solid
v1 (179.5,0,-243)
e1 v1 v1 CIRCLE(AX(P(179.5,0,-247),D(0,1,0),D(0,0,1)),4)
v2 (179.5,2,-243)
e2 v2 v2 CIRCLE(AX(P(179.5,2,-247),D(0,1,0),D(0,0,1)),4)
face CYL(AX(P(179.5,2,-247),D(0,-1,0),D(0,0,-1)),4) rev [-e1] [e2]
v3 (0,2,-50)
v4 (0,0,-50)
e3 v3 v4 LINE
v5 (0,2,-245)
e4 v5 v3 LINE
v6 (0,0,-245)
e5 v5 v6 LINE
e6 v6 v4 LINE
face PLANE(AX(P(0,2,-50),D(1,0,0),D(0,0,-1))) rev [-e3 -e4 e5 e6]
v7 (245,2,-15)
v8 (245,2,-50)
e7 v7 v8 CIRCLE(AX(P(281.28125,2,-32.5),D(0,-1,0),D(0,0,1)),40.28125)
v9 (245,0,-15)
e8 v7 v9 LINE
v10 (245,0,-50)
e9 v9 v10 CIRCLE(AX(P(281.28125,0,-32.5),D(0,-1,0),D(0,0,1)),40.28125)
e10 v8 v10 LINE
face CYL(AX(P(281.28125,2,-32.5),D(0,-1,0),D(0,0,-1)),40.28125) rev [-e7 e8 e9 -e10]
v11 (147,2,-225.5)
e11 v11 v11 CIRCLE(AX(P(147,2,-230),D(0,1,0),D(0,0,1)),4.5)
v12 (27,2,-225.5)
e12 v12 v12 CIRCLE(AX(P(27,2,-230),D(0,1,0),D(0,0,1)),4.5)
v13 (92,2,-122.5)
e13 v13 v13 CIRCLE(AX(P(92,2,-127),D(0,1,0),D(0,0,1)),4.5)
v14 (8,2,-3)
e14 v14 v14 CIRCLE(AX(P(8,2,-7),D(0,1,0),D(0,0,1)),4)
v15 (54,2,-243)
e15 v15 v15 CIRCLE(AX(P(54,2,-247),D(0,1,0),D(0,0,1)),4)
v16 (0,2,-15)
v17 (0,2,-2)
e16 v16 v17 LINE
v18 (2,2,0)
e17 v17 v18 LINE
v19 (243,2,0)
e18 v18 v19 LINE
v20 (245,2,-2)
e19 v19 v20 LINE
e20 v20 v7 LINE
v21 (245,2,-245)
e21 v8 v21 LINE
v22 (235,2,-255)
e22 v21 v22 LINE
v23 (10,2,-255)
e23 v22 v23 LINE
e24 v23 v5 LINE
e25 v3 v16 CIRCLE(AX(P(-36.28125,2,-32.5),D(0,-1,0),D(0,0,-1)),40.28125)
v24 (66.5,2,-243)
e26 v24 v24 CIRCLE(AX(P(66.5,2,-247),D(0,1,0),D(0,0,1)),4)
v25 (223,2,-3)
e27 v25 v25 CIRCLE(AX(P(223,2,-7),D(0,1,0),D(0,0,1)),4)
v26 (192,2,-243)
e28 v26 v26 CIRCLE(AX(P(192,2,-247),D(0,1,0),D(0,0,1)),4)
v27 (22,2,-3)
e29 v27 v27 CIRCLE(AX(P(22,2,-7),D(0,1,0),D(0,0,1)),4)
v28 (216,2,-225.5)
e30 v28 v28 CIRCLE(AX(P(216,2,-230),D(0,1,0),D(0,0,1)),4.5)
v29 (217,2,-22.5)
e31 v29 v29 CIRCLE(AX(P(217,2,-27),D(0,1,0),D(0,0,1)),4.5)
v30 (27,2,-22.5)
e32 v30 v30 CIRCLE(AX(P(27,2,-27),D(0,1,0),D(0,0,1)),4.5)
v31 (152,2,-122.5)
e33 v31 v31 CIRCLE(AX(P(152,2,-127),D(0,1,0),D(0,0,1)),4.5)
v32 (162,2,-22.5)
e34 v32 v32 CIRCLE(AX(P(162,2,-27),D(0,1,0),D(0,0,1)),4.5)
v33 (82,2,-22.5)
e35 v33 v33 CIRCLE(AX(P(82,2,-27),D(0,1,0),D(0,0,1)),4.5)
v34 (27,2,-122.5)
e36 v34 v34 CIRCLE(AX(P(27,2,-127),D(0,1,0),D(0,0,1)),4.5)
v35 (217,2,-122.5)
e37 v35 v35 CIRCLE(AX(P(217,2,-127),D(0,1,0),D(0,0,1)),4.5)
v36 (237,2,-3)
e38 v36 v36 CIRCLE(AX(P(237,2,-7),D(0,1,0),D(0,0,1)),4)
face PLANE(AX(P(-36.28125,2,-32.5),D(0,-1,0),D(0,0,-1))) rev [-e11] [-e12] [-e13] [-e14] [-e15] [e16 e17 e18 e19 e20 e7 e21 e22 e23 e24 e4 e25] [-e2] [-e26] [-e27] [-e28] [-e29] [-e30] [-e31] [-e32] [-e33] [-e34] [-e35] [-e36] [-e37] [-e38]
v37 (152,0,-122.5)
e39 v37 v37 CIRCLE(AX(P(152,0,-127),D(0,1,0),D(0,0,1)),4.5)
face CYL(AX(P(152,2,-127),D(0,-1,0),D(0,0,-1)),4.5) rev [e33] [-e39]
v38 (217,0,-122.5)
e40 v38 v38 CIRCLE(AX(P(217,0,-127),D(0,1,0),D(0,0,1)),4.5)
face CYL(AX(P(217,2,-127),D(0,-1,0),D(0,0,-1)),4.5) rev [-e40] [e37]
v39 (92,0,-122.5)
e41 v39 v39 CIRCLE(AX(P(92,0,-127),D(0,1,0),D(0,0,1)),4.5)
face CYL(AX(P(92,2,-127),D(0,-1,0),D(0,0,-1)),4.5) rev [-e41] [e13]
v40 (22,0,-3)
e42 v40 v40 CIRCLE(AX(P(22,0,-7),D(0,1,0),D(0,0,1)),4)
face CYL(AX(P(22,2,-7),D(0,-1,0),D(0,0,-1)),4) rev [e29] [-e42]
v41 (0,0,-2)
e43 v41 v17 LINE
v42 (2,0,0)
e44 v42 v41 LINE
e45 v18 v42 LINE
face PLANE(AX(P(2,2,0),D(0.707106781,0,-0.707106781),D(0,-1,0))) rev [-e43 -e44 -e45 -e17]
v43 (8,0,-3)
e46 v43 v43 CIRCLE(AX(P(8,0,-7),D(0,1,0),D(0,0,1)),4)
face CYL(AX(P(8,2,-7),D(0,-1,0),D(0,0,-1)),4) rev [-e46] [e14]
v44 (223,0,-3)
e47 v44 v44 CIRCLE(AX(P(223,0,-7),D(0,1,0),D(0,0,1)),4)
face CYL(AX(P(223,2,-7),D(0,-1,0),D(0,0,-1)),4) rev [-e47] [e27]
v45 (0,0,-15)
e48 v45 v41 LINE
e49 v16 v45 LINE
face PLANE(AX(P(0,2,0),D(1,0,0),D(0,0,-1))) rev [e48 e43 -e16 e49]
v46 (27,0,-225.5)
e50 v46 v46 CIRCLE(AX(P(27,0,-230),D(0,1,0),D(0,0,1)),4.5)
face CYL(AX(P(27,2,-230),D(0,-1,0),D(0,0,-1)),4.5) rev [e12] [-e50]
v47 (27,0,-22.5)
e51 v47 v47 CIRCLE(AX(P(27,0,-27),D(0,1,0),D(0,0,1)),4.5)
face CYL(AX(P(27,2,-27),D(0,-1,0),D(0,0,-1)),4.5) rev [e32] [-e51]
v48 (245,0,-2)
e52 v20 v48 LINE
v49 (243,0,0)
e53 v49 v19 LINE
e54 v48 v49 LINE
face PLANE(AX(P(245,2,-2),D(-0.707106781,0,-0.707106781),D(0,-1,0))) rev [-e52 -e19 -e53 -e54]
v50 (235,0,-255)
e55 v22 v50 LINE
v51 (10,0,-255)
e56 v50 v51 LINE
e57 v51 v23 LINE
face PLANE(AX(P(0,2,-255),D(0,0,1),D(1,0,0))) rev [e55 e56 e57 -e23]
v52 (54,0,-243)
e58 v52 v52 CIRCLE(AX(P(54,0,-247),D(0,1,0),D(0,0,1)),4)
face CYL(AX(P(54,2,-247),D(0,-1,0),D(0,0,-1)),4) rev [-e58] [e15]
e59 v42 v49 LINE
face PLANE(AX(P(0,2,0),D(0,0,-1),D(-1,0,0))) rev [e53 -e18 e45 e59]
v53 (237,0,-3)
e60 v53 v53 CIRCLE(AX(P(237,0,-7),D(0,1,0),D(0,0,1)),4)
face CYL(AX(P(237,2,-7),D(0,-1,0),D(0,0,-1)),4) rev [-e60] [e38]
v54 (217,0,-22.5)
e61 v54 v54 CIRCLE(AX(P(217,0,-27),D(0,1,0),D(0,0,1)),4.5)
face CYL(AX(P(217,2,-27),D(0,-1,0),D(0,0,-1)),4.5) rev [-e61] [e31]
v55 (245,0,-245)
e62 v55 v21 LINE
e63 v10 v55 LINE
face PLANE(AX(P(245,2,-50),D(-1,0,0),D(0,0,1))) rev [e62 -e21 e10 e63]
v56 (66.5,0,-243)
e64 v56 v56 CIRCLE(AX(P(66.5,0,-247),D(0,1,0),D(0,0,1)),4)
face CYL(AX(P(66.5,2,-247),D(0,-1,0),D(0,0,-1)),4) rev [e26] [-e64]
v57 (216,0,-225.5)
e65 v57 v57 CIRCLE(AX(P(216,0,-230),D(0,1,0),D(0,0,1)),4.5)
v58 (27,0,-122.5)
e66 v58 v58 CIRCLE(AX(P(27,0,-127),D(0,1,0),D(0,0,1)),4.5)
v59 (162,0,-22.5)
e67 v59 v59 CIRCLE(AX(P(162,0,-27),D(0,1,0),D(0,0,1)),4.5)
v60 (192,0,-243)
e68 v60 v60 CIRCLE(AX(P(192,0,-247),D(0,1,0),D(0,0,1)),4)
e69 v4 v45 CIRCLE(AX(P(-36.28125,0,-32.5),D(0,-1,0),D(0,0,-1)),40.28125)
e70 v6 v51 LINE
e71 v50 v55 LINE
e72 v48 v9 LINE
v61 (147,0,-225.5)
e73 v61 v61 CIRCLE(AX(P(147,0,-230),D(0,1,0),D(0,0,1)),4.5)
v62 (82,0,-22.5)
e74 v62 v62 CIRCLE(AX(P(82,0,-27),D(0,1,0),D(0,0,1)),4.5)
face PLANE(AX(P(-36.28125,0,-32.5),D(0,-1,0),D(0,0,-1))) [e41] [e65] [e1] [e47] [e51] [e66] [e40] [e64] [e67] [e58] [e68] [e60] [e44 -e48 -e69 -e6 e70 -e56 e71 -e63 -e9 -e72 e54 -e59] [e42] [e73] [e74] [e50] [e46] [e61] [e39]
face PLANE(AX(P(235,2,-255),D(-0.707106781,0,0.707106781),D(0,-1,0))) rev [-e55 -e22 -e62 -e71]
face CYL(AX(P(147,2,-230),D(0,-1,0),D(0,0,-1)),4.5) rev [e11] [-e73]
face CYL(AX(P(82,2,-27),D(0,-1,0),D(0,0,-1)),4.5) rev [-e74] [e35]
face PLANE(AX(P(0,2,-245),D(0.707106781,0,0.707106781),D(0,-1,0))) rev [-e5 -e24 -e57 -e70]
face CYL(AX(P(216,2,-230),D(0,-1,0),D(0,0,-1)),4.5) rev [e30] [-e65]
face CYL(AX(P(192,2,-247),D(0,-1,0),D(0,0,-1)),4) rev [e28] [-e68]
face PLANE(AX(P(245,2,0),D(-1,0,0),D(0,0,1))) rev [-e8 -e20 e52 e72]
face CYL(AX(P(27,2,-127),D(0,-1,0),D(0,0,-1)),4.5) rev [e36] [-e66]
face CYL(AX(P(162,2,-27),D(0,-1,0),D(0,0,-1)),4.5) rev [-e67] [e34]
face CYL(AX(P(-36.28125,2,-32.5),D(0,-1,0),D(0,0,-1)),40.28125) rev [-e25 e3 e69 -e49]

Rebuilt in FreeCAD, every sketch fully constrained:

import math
import FreeCAD as App
import Part
import Sketcher
Q = App.Units.Quantity


def edges_at(feature, points):
    """Names of the edges that pass closest to the given points."""
    edges = feature.Shape.Edges
    near = lambda p: min(range(len(edges)), key=lambda i: edges[i].distToShape(Part.Vertex(*p))[0])
    return sorted({f"Edge{near(p) + 1}" for p in points})

doc = App.newDocument("Part")
body = doc.addObject("PartDesign::Body", "Body")

# Sketch on XZ plane
sketch1 = doc.addObject("Sketcher::SketchObject", "Sketch")
body.addObject(sketch1)
sketch1.AttachmentSupport = (doc.XZ_Plane, [""])
sketch1.MapMode = "FlatFace"
sketch1.addGeometry(Part.LineSegment(App.Vector(0, 0, 0), App.Vector(245, 0, 0)), False)
sketch1.addGeometry(Part.LineSegment(App.Vector(245, 0, 0), App.Vector(245, -15, 0)), False)
sketch1.addGeometry(Part.ArcOfCircle(Part.Circle(App.Vector(281.28125, -32.5, 0), App.Vector(0, 0, 1), 40.28125), math.radians(154.249997), math.radians(205.750003)), False)
sketch1.addGeometry(Part.LineSegment(App.Vector(245, -50, 0), App.Vector(245, -255, 0)), False)
sketch1.addGeometry(Part.LineSegment(App.Vector(245, -255, 0), App.Vector(0, -255, 0)), False)
sketch1.addGeometry(Part.LineSegment(App.Vector(0, -255, 0), App.Vector(0, -50, 0)), False)
sketch1.addGeometry(Part.ArcOfCircle(Part.Circle(App.Vector(-36.28125, -32.5, 0), App.Vector(0, 0, 1), 40.28125), math.radians(-25.750003), math.radians(25.750003)), False)
sketch1.addGeometry(Part.LineSegment(App.Vector(0, -15, 0), App.Vector(0, 0, 0)), False)
sketch1.addGeometry(Part.Circle(App.Vector(8, -7, 0), App.Vector(0, 0, 1), 4), False)
sketch1.addGeometry(Part.Circle(App.Vector(22, -7, 0), App.Vector(0, 0, 1), 4), False)
sketch1.addGeometry(Part.Circle(App.Vector(27, -27, 0), App.Vector(0, 0, 1), 4.5), False)
sketch1.addGeometry(Part.Circle(App.Vector(82, -27, 0), App.Vector(0, 0, 1), 4.5), False)
sketch1.addGeometry(Part.Circle(App.Vector(162, -27, 0), App.Vector(0, 0, 1), 4.5), False)
sketch1.addGeometry(Part.Circle(App.Vector(223, -7, 0), App.Vector(0, 0, 1), 4), False)
sketch1.addGeometry(Part.Circle(App.Vector(237, -7, 0), App.Vector(0, 0, 1), 4), False)
sketch1.addGeometry(Part.Circle(App.Vector(217, -27, 0), App.Vector(0, 0, 1), 4.5), False)
sketch1.addGeometry(Part.Circle(App.Vector(27, -127, 0), App.Vector(0, 0, 1), 4.5), False)
sketch1.addGeometry(Part.Circle(App.Vector(92, -127, 0), App.Vector(0, 0, 1), 4.5), False)
sketch1.addGeometry(Part.Circle(App.Vector(27, -230, 0), App.Vector(0, 0, 1), 4.5), False)
sketch1.addGeometry(Part.Circle(App.Vector(54, -247, 0), App.Vector(0, 0, 1), 4), False)
sketch1.addGeometry(Part.Circle(App.Vector(66.5, -247, 0), App.Vector(0, 0, 1), 4), False)
sketch1.addGeometry(Part.Circle(App.Vector(152, -127, 0), App.Vector(0, 0, 1), 4.5), False)
sketch1.addGeometry(Part.Circle(App.Vector(217, -127, 0), App.Vector(0, 0, 1), 4.5), False)
sketch1.addGeometry(Part.Circle(App.Vector(147, -230, 0), App.Vector(0, 0, 1), 4.5), False)
sketch1.addGeometry(Part.Circle(App.Vector(179.5, -247, 0), App.Vector(0, 0, 1), 4), False)
sketch1.addGeometry(Part.Circle(App.Vector(192, -247, 0), App.Vector(0, 0, 1), 4), False)
sketch1.addGeometry(Part.Circle(App.Vector(216, -230, 0), App.Vector(0, 0, 1), 4.5), False)
sketch1.addConstraint(Sketcher.Constraint("Coincident", 0, 2, 1, 1))
sketch1.addConstraint(Sketcher.Constraint("Coincident", 1, 2, 2, 1))
sketch1.addConstraint(Sketcher.Constraint("Coincident", 2, 2, 3, 1))
sketch1.addConstraint(Sketcher.Constraint("Coincident", 3, 2, 4, 1))
sketch1.addConstraint(Sketcher.Constraint("Coincident", 4, 2, 5, 1))
sketch1.addConstraint(Sketcher.Constraint("Coincident", 5, 2, 6, 1))
sketch1.addConstraint(Sketcher.Constraint("Coincident", 6, 2, 7, 1))
sketch1.addConstraint(Sketcher.Constraint("Coincident", 7, 2, 0, 1))
sketch1.addConstraint(Sketcher.Constraint("Horizontal", 0))
sketch1.addConstraint(Sketcher.Constraint("Vertical", 1))
sketch1.addConstraint(Sketcher.Constraint("Vertical", 3))
sketch1.addConstraint(Sketcher.Constraint("Horizontal", 4))
sketch1.addConstraint(Sketcher.Constraint("Vertical", 5))
sketch1.addConstraint(Sketcher.Constraint("Vertical", 7))
sketch1.addConstraint(Sketcher.Constraint("Coincident", 7, 2, -1, 1))
sketch1.addConstraint(Sketcher.Constraint("Equal", 2, 6))
sketch1.addConstraint(Sketcher.Constraint("Equal", 8, 9))
sketch1.addConstraint(Sketcher.Constraint("Equal", 10, 11))
sketch1.addConstraint(Sketcher.Constraint("Equal", 11, 12))
sketch1.addConstraint(Sketcher.Constraint("Equal", 9, 13))
sketch1.addConstraint(Sketcher.Constraint("Equal", 13, 14))
sketch1.addConstraint(Sketcher.Constraint("Equal", 12, 15))
sketch1.addConstraint(Sketcher.Constraint("Equal", 15, 16))
sketch1.addConstraint(Sketcher.Constraint("Equal", 16, 17))
sketch1.addConstraint(Sketcher.Constraint("Equal", 17, 18))
sketch1.addConstraint(Sketcher.Constraint("Equal", 14, 19))
sketch1.addConstraint(Sketcher.Constraint("Equal", 19, 20))
sketch1.addConstraint(Sketcher.Constraint("Equal", 18, 21))
sketch1.addConstraint(Sketcher.Constraint("Equal", 21, 22))
sketch1.addConstraint(Sketcher.Constraint("Equal", 22, 23))
sketch1.addConstraint(Sketcher.Constraint("Equal", 20, 24))
sketch1.addConstraint(Sketcher.Constraint("Equal", 24, 25))
sketch1.addConstraint(Sketcher.Constraint("Equal", 23, 26))
sketch1.addConstraint(Sketcher.Constraint("PointOnObject", 4, 2, -2))
sketch1.addConstraint(Sketcher.Constraint("Horizontal", 2, 3, 6, 3))
sketch1.addConstraint(Sketcher.Constraint("Horizontal", 8, 3, 9, 3))
sketch1.addConstraint(Sketcher.Constraint("Horizontal", 10, 3, 11, 3))
sketch1.addConstraint(Sketcher.Constraint("Horizontal", 11, 3, 12, 3))
sketch1.addConstraint(Sketcher.Constraint("Horizontal", 9, 3, 13, 3))
sketch1.addConstraint(Sketcher.Constraint("Horizontal", 13, 3, 14, 3))
sketch1.addConstraint(Sketcher.Constraint("Horizontal", 12, 3, 15, 3))
sketch1.addConstraint(Sketcher.Constraint("Horizontal", 16, 3, 17, 3))
sketch1.addConstraint(Sketcher.Constraint("Horizontal", 19, 3, 20, 3))
sketch1.addConstraint(Sketcher.Constraint("Horizontal", 17, 3, 21, 3))
sketch1.addConstraint(Sketcher.Constraint("Horizontal", 21, 3, 22, 3))
sketch1.addConstraint(Sketcher.Constraint("Horizontal", 18, 3, 23, 3))
sketch1.addConstraint(Sketcher.Constraint("Horizontal", 20, 3, 24, 3))
sketch1.addConstraint(Sketcher.Constraint("Horizontal", 24, 3, 25, 3))
sketch1.addConstraint(Sketcher.Constraint("Horizontal", 23, 3, 26, 3))
sketch1.addConstraint(Sketcher.Constraint("Horizontal", 2, 2, 5, 2))
sketch1.addConstraint(Sketcher.Constraint("Horizontal", 1, 2, 6, 2))
sketch1.addConstraint(Sketcher.Constraint("Vertical", 10, 3, 16, 3))
sketch1.addConstraint(Sketcher.Constraint("Vertical", 16, 3, 18, 3))
sketch1.addConstraint(Sketcher.Constraint("Vertical", 15, 3, 22, 3))
sketch1.addConstraint(Sketcher.Constraint("Diameter", 8, Q("8 mm")))
sketch1.addConstraint(Sketcher.Constraint("Diameter", 10, Q("9 mm")))
sketch1.addConstraint(Sketcher.Constraint("DistanceX", 0, 1, 0, 2, Q("245 mm")))
sketch1.addConstraint(Sketcher.Constraint("DistanceY", 1, 2, 1, 1, Q("15 mm")))
sketch1.addConstraint(Sketcher.Constraint("DistanceY", 3, 2, 3, 1, Q("205 mm")))
sketch1.addConstraint(Sketcher.Constraint("DistanceX", -1, 1, 8, 3, Q("8 mm")))
sketch1.addConstraint(Sketcher.Constraint("DistanceY", 8, 3, -1, 1, Q("7 mm")))
sketch1.addConstraint(Sketcher.Constraint("DistanceX", -1, 1, 9, 3, Q("22 mm")))
sketch1.addConstraint(Sketcher.Constraint("DistanceX", -1, 1, 10, 3, Q("27 mm")))
sketch1.addConstraint(Sketcher.Constraint("DistanceY", 10, 3, -1, 1, Q("27 mm")))
sketch1.addConstraint(Sketcher.Constraint("DistanceX", -1, 1, 11, 3, Q("82 mm")))
sketch1.addConstraint(Sketcher.Constraint("DistanceX", -1, 1, 12, 3, Q("162 mm")))
sketch1.addConstraint(Sketcher.Constraint("DistanceX", -1, 1, 13, 3, Q("223 mm")))
sketch1.addConstraint(Sketcher.Constraint("DistanceX", -1, 1, 14, 3, Q("237 mm")))
sketch1.addConstraint(Sketcher.Constraint("DistanceX", -1, 1, 15, 3, Q("217 mm")))
sketch1.addConstraint(Sketcher.Constraint("DistanceY", 16, 3, -1, 1, Q("127 mm")))
sketch1.addConstraint(Sketcher.Constraint("DistanceX", -1, 1, 17, 3, Q("92 mm")))
sketch1.addConstraint(Sketcher.Constraint("DistanceY", 18, 3, -1, 1, Q("230 mm")))
sketch1.addConstraint(Sketcher.Constraint("DistanceX", -1, 1, 19, 3, Q("54 mm")))
sketch1.addConstraint(Sketcher.Constraint("DistanceY", 19, 3, -1, 1, Q("247 mm")))
sketch1.addConstraint(Sketcher.Constraint("DistanceX", -1, 1, 21, 3, Q("152 mm")))
sketch1.addConstraint(Sketcher.Constraint("DistanceX", -1, 1, 23, 3, Q("147 mm")))
sketch1.addConstraint(Sketcher.Constraint("DistanceX", -1, 1, 25, 3, Q("192 mm")))
sketch1.addConstraint(Sketcher.Constraint("DistanceX", -1, 1, 26, 3, Q("216 mm")))
sketch1.addConstraint(Sketcher.Constraint("DistanceY", 2, 2, -1, 1, Q("50 mm")))
sketch1.addConstraint(Sketcher.Constraint("DistanceX", 20, 3, 24, 3, Q("113 mm")))
sketch1.addConstraint(Sketcher.Constraint("DistanceX", -1, 1, 20, 3, Q("66.5 mm")))
sketch1.addConstraint(Sketcher.Constraint("Radius", 2, Q("40.28125 mm")))
pad1 = doc.addObject("PartDesign::Pad", "Pad")
body.addObject(pad1)
pad1.Profile = sketch1
pad1.Length = 2
pad1.Reversed = True
doc.recompute()

chamfer = doc.addObject("PartDesign::Chamfer", "Chamfer")
body.addObject(chamfer)
chamfer.Base = (pad1, edges_at(pad1, [(245, 1, 0), (0, 1, 0)]))
chamfer.Size = 2
doc.recompute()

chamfer2 = doc.addObject("PartDesign::Chamfer", "Chamfer001")
body.addObject(chamfer2)
chamfer2.Base = (chamfer, edges_at(chamfer, [(0, 1, -255), (245, 1, -255)]))
chamfer2.Size = 10

doc.recompute()
